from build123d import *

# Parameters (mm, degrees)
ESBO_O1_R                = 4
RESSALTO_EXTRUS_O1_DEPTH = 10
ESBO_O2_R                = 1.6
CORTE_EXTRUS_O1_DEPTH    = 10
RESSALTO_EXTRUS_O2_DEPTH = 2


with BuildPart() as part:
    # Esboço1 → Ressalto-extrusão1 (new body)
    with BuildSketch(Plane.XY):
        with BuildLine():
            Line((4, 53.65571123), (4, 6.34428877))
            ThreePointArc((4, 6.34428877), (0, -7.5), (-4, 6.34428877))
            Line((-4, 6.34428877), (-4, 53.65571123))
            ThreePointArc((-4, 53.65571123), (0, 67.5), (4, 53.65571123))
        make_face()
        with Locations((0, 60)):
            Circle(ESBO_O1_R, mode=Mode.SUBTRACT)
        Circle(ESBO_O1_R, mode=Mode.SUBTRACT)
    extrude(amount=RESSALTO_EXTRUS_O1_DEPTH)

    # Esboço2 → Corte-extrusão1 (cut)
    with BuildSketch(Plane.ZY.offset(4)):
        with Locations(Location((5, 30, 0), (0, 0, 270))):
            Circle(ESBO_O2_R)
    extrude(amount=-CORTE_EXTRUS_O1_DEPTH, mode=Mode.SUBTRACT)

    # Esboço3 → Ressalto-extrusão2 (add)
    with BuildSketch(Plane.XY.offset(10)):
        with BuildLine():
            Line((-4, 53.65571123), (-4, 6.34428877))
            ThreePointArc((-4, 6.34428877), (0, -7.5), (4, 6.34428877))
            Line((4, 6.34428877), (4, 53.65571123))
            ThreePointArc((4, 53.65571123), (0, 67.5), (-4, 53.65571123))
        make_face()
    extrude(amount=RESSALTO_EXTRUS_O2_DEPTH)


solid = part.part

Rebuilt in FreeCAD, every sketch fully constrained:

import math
import FreeCAD as App
import Part
import Sketcher

doc = App.newDocument("Part")
body = doc.addObject("PartDesign::Body", "Body")

# Sketch on XY plane
sketch1 = body.newObject("Sketcher::SketchObject", "Sketch")
sketch1.AttachmentSupport = (doc.getObject("XY_Plane"), [""])
sketch1.MapMode = "FlatFace"
sketch1.addGeometry([
    Part.LineSegment(App.Vector(4, 6.3, 0), App.Vector(4, 53.7, 0)),  # 0
    Part.ArcOfCircle(Part.Circle(App.Vector(0, 60, 0), App.Vector(0, 0, 1), 7.5), math.radians(-58), math.radians(238)),  # 1
    Part.LineSegment(App.Vector(-4, 53.7, 0), App.Vector(-4, 6.3, 0)),  # 2
    Part.ArcOfCircle(Part.Circle(App.Vector(0, 0, 0), App.Vector(0, 0, 1), 7.5), math.radians(122), math.radians(418)),  # 3
    Part.Circle(App.Vector(0, 0, 0), App.Vector(0, 0, 1), 4),  # 4
    Part.Circle(App.Vector(0, 60, 0), App.Vector(0, 0, 1), 4),  # 5
], False)
sketch1.addConstraint([
    Sketcher.Constraint("Coincident", 0, 2, 1, 1),
    Sketcher.Constraint("Coincident", 1, 2, 2, 1),
    Sketcher.Constraint("Coincident", 2, 2, 3, 1),
    Sketcher.Constraint("Coincident", 3, 2, 0, 1),
    Sketcher.Constraint("Vertical", 0),
    Sketcher.Constraint("Vertical", 2),
    Sketcher.Constraint("Coincident", 3, 3, -1, 1),
    Sketcher.Constraint("Coincident", 4, 3, -1, 1),
    Sketcher.Constraint("Coincident", 5, 3, 1, 3),
    Sketcher.Constraint("Equal", 1, 3),
    Sketcher.Constraint("Equal", 4, 5),
    Sketcher.Constraint("Symmetric", 0, 2, 1, 2, -2),
    Sketcher.Constraint("Diameter", 4, 8.0),
    Sketcher.Constraint("Radius", 1, 7.5),
    Sketcher.Constraint("DistanceY", -1, 1, 1, 3, 60.0),
    Sketcher.Constraint("DistanceX", -1, 1, 0, 2, 4.0),
])
pad1 = body.newObject("PartDesign::Pad", "Pad")
pad1.Profile = sketch1
pad1.Length = 10

# Sketch on YZ plane
sketch2 = body.newObject("Sketcher::SketchObject", "Sketch001")
sketch2.AttachmentSupport = (doc.getObject("YZ_Plane"), [""])
sketch2.MapMode = "FlatFace"
sketch2.AttachmentOffset = App.Placement(App.Vector(0, 0, -4), App.Rotation())
sketch2.addGeometry(Part.Circle(App.Vector(30, 5, 0), App.Vector(0, 0, 1), 1.6), False)
sketch2.addConstraint([
    Sketcher.Constraint("Diameter", 0, 3.2),
    Sketcher.Constraint("DistanceX", -1, 1, 0, 3, 30.0),
    Sketcher.Constraint("DistanceY", -1, 1, 0, 3, 5.0),
])
pocket1 = body.newObject("PartDesign::Pocket", "Pocket")
pocket1.Profile = sketch2
pocket1.Length = 10
pocket1.Reversed = True

# Sketch on XY plane
sketch3 = body.newObject("Sketcher::SketchObject", "Sketch002")
sketch3.AttachmentSupport = (doc.getObject("XY_Plane"), [""])
sketch3.MapMode = "FlatFace"
sketch3.AttachmentOffset = App.Placement(App.Vector(0, 0, 10), App.Rotation())
sketch3.addGeometry([
    Part.LineSegment(App.Vector(-4, 54, 0), App.Vector(-4, 6, 0)),
    Part.ArcOfCircle(Part.Circle(App.Vector(0, 0, 0), App.Vector(0, 0, 1), 8), math.radians(122), math.radians(418)),
    Part.LineSegment(App.Vector(4, 6, 0), App.Vector(4, 54, 0)),
    Part.ArcOfCircle(Part.Circle(App.Vector(0, 60, 0), App.Vector(0, 0, 1), 8), math.radians(-58), math.radians(238)),
], False)
sketch3.addConstraint([
    Sketcher.Constraint("Coincident", 0, 2, 1, 1),
    Sketcher.Constraint("Coincident", 1, 2, 2, 1),
    Sketcher.Constraint("Coincident", 2, 2, 3, 1),
    Sketcher.Constraint("Coincident", 3, 2, 0, 1),
    Sketcher.Constraint("Vertical", 0),
    Sketcher.Constraint("Vertical", 2),
    Sketcher.Constraint("Coincident", 1, 3, -1, 1),
    Sketcher.Constraint("Equal", 1, 3),
    Sketcher.Constraint("Symmetric", 2, 2, 3, 2, -2),
    Sketcher.Constraint("Radius", 1, 7.5),
    Sketcher.Constraint("DistanceY", -1, 1, 3, 3, 60.0),
    Sketcher.Constraint("DistanceX", 0, 2, -1, 1, 4.0),
])
pad2 = body.newObject("PartDesign::Pad", "Pad001")
pad2.Profile = sketch3
pad2.Length = 2

doc.recompute()
